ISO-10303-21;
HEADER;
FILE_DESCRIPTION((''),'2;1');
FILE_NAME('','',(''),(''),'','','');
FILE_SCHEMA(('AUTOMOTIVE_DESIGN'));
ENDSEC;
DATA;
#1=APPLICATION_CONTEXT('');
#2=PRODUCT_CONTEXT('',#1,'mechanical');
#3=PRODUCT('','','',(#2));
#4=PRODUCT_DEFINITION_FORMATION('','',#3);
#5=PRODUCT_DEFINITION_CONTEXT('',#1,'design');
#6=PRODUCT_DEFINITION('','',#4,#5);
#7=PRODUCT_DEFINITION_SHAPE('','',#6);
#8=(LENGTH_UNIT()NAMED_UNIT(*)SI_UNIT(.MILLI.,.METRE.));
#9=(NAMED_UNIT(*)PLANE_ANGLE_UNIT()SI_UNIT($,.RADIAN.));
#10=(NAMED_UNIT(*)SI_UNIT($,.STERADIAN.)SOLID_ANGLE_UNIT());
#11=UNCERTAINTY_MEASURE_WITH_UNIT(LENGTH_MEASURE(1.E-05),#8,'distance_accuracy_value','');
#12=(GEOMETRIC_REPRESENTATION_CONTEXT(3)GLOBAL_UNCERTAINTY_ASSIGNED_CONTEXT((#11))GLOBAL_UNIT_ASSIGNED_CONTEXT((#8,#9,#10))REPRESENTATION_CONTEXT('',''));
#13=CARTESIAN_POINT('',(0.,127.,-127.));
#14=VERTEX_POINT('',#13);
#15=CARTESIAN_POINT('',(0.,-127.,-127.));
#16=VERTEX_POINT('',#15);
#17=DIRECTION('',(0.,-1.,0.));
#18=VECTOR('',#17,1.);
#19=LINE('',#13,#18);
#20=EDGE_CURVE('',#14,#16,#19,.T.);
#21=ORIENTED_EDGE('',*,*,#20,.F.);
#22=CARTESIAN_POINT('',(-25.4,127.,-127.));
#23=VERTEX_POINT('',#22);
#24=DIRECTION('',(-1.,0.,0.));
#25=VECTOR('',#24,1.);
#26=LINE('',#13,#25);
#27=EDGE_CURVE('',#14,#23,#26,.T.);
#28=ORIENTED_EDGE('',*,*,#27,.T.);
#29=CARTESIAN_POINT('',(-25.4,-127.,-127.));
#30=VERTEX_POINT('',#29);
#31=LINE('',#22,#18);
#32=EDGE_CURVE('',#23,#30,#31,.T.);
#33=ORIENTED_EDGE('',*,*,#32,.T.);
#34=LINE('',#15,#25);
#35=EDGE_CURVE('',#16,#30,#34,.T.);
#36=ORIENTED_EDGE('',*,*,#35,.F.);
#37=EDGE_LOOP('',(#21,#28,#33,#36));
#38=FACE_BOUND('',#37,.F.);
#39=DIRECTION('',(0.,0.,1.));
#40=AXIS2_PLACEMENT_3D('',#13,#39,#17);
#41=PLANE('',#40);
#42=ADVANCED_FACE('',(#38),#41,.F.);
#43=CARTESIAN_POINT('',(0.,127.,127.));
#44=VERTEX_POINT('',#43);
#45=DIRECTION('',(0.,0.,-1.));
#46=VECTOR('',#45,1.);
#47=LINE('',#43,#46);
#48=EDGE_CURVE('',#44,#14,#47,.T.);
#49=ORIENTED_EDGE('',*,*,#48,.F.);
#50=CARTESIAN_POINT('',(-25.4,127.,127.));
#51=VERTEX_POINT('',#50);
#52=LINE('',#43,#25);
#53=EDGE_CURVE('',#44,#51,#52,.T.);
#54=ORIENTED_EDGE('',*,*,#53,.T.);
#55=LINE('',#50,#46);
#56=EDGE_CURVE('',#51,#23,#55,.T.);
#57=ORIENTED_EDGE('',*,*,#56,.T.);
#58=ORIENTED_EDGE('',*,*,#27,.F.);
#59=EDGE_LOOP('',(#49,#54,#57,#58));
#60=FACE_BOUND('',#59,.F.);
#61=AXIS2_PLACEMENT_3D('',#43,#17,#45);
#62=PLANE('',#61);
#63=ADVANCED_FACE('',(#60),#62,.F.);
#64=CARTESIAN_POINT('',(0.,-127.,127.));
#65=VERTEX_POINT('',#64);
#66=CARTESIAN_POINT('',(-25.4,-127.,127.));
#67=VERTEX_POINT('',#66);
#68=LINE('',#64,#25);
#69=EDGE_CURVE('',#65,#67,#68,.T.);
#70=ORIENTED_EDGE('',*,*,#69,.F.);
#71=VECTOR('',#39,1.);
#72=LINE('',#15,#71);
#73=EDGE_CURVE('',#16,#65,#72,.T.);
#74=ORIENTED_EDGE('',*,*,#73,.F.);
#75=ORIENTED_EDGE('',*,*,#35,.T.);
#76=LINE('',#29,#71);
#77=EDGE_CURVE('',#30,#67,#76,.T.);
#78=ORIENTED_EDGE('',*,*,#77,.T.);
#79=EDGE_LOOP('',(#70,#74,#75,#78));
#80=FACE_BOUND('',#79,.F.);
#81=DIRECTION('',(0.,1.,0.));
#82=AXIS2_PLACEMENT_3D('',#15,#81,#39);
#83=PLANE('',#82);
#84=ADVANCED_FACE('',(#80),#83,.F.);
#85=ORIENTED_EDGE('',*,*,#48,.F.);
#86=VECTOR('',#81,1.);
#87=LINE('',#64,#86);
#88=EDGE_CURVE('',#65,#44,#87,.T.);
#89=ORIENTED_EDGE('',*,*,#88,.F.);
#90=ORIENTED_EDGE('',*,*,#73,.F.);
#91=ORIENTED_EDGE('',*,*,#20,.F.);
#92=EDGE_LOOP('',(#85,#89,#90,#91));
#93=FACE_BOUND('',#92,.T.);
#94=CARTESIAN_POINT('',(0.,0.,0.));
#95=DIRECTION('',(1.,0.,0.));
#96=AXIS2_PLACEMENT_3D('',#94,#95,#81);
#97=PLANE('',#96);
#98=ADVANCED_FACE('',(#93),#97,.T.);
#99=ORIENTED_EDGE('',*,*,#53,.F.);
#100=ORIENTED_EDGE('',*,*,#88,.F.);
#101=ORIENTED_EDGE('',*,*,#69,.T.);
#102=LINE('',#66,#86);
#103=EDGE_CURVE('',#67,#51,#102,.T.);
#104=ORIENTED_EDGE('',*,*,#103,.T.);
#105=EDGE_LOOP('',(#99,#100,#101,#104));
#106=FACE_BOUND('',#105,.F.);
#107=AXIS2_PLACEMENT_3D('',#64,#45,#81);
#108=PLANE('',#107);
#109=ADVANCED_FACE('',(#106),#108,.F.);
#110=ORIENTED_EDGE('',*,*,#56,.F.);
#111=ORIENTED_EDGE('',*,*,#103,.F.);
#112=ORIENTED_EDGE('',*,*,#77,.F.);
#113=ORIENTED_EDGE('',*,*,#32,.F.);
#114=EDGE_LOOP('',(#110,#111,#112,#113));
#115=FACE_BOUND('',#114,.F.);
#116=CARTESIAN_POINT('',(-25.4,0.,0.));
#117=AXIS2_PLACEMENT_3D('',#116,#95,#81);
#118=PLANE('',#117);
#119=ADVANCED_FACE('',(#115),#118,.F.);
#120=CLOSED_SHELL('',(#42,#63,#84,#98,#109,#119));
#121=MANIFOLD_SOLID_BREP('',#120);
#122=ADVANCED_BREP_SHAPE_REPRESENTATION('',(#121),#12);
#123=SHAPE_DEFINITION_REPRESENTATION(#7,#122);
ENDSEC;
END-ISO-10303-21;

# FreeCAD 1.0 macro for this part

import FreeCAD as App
import Part
import Sketcher

V = App.Vector
Q = App.Units.Quantity

doc = App.newDocument("Part")
body = doc.addObject("PartDesign::Body", "Body")

sketch1 = body.newObject("Sketcher::SketchObject", "Sketch")
sketch1.AttachmentSupport = (doc.getObject("YZ_Plane"), [""])
sketch1.MapMode = "FlatFace"
sketch1.addGeometry([
    Part.LineSegment(V(127, 127, 0), V(-127, 127, 0)),
    Part.LineSegment(V(-127, 127, 0), V(-127, -127, 0)),
    Part.LineSegment(V(-127, -127, 0), V(127, -127, 0)),
    Part.LineSegment(V(127, -127, 0), V(127, 127, 0)),
], False)
sketch1.addConstraint([
    Sketcher.Constraint("Coincident", 0, 2, 1, 1),
    Sketcher.Constraint("Coincident", 1, 2, 2, 1),
    Sketcher.Constraint("Coincident", 2, 2, 3, 1),
    Sketcher.Constraint("Coincident", 3, 2, 0, 1),
    Sketcher.Constraint("Horizontal", 0),
    Sketcher.Constraint("Vertical", 1),
    Sketcher.Constraint("Horizontal", 2),
    Sketcher.Constraint("Vertical", 3),
    Sketcher.Constraint("Symmetric", 0, 2, 2, 2, -1, 1),
    Sketcher.Constraint("Equal", 2, 1),
    Sketcher.Constraint("DistanceX", 0, 2, 0, 1, Q("10 in")),
])
pad1 = body.newObject("PartDesign::Pad", "Pad")
pad1.Profile = sketch1
pad1.Length = Q("1 in")
pad1.Reversed = True

doc.recompute()
